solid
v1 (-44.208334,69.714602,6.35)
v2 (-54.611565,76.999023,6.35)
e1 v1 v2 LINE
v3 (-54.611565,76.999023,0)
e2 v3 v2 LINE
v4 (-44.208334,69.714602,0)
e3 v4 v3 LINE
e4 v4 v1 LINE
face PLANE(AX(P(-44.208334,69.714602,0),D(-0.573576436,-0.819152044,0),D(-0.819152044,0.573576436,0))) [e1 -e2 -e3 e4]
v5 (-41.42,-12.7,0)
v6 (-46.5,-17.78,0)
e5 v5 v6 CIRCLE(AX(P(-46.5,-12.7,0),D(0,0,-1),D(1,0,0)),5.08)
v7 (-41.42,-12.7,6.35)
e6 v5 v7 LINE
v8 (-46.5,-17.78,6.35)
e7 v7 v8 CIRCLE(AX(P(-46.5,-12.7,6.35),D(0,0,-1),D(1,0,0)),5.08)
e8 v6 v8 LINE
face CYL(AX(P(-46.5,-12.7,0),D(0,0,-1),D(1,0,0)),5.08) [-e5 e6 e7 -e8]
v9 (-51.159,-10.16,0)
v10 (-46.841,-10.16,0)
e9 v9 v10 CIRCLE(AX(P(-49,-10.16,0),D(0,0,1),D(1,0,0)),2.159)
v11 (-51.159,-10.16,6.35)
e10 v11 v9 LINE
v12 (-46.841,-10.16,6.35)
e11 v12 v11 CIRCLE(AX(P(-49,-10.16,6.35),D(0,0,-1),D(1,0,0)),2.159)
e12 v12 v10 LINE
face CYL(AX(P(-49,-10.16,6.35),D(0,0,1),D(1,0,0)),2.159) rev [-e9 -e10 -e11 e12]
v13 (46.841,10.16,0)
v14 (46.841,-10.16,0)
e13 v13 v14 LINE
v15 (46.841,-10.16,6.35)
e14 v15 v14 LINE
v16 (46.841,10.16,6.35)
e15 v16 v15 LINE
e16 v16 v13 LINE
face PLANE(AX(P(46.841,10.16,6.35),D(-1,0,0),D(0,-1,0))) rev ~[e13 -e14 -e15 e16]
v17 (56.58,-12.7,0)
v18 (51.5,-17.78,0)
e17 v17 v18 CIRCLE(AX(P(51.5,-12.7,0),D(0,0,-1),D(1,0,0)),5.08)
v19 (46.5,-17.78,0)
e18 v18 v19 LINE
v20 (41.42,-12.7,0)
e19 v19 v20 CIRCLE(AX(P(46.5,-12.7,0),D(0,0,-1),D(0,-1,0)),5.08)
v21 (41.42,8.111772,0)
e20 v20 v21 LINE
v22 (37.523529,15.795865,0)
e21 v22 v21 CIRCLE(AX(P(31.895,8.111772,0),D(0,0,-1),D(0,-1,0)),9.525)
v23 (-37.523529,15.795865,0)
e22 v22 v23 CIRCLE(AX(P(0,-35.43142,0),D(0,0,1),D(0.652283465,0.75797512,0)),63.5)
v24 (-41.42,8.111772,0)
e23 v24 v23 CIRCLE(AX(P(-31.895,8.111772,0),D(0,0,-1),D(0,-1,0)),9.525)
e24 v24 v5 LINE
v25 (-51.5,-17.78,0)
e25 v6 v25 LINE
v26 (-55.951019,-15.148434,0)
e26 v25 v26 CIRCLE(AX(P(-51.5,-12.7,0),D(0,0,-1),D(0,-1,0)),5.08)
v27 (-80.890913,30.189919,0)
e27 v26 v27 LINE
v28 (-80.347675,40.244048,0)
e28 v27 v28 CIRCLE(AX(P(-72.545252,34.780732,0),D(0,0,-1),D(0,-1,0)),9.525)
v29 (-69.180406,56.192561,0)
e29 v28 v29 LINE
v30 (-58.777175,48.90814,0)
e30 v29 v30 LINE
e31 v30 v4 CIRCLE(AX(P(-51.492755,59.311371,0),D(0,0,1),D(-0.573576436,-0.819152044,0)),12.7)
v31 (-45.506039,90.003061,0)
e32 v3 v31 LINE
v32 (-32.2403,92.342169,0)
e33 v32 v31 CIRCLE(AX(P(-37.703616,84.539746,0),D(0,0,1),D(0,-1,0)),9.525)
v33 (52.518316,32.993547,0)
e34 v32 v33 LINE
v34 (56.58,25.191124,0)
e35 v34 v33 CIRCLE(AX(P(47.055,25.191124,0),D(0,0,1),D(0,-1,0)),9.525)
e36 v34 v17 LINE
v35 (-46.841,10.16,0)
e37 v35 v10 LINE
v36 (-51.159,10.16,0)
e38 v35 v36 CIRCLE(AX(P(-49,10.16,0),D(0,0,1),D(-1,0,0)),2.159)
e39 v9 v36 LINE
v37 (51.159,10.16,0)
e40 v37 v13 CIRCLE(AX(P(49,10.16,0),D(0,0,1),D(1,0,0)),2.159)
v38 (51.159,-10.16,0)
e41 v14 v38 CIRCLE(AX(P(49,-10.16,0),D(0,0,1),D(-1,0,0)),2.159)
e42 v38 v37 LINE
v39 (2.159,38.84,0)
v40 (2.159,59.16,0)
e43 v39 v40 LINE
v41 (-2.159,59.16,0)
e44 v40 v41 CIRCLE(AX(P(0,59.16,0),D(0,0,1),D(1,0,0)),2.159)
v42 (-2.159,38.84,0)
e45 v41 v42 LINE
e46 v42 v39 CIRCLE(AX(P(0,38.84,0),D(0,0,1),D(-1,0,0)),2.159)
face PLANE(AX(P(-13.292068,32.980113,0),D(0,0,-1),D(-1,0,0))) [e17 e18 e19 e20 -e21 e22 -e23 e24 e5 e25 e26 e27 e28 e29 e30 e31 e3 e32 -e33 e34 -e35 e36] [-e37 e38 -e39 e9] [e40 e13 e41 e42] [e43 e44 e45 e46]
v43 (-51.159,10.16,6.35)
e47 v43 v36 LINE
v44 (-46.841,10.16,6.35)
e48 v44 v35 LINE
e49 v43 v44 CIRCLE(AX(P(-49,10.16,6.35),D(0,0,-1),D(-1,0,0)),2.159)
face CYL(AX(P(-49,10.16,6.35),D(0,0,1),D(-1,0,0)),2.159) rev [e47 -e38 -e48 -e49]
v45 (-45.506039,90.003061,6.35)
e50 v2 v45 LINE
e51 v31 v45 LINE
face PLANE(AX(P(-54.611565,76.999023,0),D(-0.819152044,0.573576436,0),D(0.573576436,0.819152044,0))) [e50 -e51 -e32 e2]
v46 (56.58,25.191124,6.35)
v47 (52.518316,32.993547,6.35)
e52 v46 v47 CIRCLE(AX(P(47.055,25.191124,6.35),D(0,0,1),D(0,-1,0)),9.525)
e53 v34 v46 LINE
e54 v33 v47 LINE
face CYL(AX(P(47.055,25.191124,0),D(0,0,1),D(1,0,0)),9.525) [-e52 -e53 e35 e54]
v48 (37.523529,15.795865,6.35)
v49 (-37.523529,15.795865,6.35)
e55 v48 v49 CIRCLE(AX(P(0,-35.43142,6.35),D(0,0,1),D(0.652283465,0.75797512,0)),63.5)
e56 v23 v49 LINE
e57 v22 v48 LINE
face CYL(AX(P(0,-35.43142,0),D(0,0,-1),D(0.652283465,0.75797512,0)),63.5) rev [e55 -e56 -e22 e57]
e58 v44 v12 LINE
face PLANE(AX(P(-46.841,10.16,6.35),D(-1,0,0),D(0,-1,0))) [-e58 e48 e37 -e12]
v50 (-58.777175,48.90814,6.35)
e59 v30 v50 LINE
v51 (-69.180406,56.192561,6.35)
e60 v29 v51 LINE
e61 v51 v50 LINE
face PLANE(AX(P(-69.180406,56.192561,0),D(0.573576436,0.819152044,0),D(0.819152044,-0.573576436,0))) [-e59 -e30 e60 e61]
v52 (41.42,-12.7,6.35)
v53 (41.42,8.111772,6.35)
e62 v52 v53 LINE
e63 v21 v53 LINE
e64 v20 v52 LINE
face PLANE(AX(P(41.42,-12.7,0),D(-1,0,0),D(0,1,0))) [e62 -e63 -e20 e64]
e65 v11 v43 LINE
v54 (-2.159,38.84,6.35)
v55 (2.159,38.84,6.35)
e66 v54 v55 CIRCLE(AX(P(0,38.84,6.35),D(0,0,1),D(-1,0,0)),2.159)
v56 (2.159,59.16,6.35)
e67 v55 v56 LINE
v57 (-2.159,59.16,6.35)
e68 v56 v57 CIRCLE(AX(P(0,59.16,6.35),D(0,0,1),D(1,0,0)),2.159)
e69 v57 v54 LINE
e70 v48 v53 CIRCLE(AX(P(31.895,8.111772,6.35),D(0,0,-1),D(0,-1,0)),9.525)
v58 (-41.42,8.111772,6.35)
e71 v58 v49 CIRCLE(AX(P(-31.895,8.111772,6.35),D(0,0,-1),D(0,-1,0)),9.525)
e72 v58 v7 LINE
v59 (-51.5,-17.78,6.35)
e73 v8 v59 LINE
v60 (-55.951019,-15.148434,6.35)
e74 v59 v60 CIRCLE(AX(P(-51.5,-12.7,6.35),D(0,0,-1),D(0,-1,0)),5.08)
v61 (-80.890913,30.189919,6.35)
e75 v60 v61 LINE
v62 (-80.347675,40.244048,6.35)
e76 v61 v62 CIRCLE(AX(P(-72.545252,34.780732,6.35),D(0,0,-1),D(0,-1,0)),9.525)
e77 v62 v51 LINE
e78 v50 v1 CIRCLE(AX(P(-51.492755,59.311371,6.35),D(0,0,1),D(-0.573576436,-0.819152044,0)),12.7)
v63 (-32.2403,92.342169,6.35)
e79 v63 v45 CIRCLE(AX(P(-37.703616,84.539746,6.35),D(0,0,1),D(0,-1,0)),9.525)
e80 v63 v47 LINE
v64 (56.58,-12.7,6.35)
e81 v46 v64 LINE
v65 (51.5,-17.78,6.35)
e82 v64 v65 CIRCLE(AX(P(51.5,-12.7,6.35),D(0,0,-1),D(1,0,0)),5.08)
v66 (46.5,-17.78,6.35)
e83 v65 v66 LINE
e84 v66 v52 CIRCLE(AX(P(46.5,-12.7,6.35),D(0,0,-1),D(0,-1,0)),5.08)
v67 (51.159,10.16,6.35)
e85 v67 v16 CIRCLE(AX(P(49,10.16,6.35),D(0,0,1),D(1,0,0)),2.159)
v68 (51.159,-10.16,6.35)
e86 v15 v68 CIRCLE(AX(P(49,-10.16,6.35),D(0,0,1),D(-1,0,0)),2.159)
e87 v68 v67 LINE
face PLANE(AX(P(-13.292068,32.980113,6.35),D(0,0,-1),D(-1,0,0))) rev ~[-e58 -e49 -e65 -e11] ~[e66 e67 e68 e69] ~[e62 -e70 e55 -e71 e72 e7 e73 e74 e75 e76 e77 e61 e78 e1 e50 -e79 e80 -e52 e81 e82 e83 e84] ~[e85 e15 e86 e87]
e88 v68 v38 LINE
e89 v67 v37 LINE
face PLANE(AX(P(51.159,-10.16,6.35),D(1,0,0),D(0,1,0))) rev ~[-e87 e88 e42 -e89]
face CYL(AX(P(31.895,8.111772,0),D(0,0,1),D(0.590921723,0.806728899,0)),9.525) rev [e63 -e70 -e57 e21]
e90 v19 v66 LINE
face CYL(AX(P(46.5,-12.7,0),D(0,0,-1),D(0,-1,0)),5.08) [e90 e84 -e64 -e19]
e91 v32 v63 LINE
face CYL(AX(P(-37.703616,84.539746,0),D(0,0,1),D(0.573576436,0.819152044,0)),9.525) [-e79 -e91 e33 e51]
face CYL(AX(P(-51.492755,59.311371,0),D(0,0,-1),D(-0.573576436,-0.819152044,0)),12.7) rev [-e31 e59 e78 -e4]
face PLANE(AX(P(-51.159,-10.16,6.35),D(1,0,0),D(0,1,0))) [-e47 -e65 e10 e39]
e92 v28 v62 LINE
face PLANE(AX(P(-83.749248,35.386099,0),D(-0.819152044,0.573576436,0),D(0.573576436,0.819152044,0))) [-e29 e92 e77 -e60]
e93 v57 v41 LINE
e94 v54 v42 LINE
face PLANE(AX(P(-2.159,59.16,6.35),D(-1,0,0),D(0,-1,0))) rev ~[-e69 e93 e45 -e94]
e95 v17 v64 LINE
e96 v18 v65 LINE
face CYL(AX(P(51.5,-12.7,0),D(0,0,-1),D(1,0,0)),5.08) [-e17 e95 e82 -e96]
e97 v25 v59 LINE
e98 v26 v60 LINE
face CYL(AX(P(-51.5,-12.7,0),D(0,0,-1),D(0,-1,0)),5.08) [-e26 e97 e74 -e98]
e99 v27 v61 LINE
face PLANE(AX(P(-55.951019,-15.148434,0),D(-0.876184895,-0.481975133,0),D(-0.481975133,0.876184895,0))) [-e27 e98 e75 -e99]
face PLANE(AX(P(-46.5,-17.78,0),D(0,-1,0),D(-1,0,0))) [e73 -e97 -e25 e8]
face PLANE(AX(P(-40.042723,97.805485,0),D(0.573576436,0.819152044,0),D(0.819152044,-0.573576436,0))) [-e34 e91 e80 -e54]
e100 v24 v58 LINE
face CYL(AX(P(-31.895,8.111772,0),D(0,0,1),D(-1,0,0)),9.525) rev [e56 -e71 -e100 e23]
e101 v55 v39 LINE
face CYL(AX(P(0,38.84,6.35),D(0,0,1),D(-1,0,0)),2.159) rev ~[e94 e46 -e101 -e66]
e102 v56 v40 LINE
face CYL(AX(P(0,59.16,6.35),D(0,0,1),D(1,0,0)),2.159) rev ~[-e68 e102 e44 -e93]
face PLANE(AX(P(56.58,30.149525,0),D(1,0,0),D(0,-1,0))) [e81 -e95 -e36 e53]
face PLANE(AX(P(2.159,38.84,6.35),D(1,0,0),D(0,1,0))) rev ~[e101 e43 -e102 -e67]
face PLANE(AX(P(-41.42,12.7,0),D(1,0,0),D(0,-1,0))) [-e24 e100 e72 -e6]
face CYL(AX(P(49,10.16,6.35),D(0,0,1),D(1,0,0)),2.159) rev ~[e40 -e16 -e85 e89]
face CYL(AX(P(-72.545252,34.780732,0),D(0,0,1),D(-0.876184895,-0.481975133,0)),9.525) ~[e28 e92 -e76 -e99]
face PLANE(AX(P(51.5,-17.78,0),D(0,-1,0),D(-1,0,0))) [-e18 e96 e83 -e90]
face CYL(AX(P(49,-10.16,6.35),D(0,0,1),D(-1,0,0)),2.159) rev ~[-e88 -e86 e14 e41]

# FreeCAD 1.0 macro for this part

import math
import FreeCAD as App
import Part
import Sketcher
Q = App.Units.Quantity


def edges_at(feature, points):
    """Names of the edges that pass closest to the given points."""
    edges = feature.Shape.Edges
    near = lambda p: min(range(len(edges)), key=lambda i: edges[i].distToShape(Part.Vertex(*p))[0])
    return sorted({f"Edge{near(p) + 1}" for p in points})

doc = App.newDocument("Part")
params = doc.addObject("Spreadsheet::Sheet", "Params")
for row, (alias, value) in enumerate([
    ("sketch1_radius", "2.5 in"),
    ("sketch1_radius2", "0.2 in"),
    ("sketch1_radius3", "0.5 in"),
    ("sketch1_height", "1 in"),
    ("sketch1_length", "1 in"),
    ("pad1_length", "0.25 in"),
    ("sketch2_height", "0.8 in"),
    ("sketch2_radius", "0.085 in"),
    ("sketch3_height", "0.8 in"),
    ("sketch3_radius", "0.085 in"),
    ("sketch4_height", "0.8 in"),
    ("sketch4_radius", "0.085 in"),
    ("fillet_radius", "0.375 in"),
], start=1):
    params.set(f"A{row}", alias)
    params.set(f"B{row}", "=" + value)
    params.setAlias(f"B{row}", alias)

body = doc.addObject("PartDesign::Body", "Body")

# Sketch on XY plane
sketch1 = doc.addObject("Sketcher::SketchObject", "Sketch")
body.addObject(sketch1)
sketch1.AttachmentSupport = (doc.XY_Plane, [""])
sketch1.MapMode = "FlatFace"
sketch1.addGeometry(Part.LineSegment(App.Vector(-41, -13, 0), App.Vector(-41, 13, 0)), False)
sketch1.addGeometry(Part.ArcOfCircle(Part.Circle(App.Vector(0, -35, 0), App.Vector(0, 0, 1), 63), math.radians(49), math.radians(131)), False)
sketch1.addGeometry(Part.LineSegment(App.Vector(41, 13, 0), App.Vector(41, -13, 0)), False)
sketch1.addGeometry(Part.ArcOfCircle(Part.Circle(App.Vector(47, -13, 0), App.Vector(0, 0, 1), 5), math.radians(-180), math.radians(-90)), False)
sketch1.addGeometry(Part.LineSegment(App.Vector(46, -18, 0), App.Vector(52, -18, 0)), False)
sketch1.addGeometry(Part.ArcOfCircle(Part.Circle(App.Vector(51, -13, 0), App.Vector(0, 0, 1), 5), math.radians(-90), math.radians(0)), False)
sketch1.addGeometry(Part.LineSegment(App.Vector(57, -13, 0), App.Vector(57, 30, 0)), False)
sketch1.addGeometry(Part.LineSegment(App.Vector(57, 30, 0), App.Vector(-40, 98, 0)), False)
sketch1.addGeometry(Part.LineSegment(App.Vector(-40, 98, 0), App.Vector(-55, 77, 0)), False)
sketch1.addGeometry(Part.LineSegment(App.Vector(-55, 77, 0), App.Vector(-44, 70, 0)), False)
sketch1.addGeometry(Part.ArcOfCircle(Part.Circle(App.Vector(-51, 59, 0), App.Vector(0, 0, 1), 13), math.radians(-125), math.radians(55)), False)
sketch1.addGeometry(Part.LineSegment(App.Vector(-59, 49, 0), App.Vector(-69, 56, 0)), False)
sketch1.addGeometry(Part.LineSegment(App.Vector(-69, 56, 0), App.Vector(-84, 35, 0)), False)
sketch1.addGeometry(Part.LineSegment(App.Vector(-84, 35, 0), App.Vector(-56, -15, 0)), False)
sketch1.addGeometry(Part.ArcOfCircle(Part.Circle(App.Vector(-52, -13, 0), App.Vector(0, 0, 1), 5), math.radians(-151), math.radians(-90)), False)
sketch1.addGeometry(Part.LineSegment(App.Vector(-52, -18, 0), App.Vector(-46, -18, 0)), False)
sketch1.addGeometry(Part.ArcOfCircle(Part.Circle(App.Vector(-47, -13, 0), App.Vector(0, 0, 1), 5), math.radians(-90), math.radians(0)), False)
sketch1.addConstraint(Sketcher.Constraint("Coincident", 0, 2, 1, 2))
sketch1.addConstraint(Sketcher.Constraint("Coincident", 1, 1, 2, 1))
sketch1.addConstraint(Sketcher.Constraint("Tangent", 2, 2, 3, 1))
sketch1.addConstraint(Sketcher.Constraint("Tangent", 3, 2, 4, 1))
sketch1.addConstraint(Sketcher.Constraint("Tangent", 4, 2, 5, 1))
sketch1.addConstraint(Sketcher.Constraint("Tangent", 5, 2, 6, 1))
sketch1.addConstraint(Sketcher.Constraint("Coincident", 6, 2, 7, 1))
sketch1.addConstraint(Sketcher.Constraint("Coincident", 7, 2, 8, 1))
sketch1.addConstraint(Sketcher.Constraint("Coincident", 8, 2, 9, 1))
sketch1.addConstraint(Sketcher.Constraint("Tangent", 9, 2, 10, 2))
sketch1.addConstraint(Sketcher.Constraint("Tangent", 10, 1, 11, 1))
sketch1.addConstraint(Sketcher.Constraint("Coincident", 11, 2, 12, 1))
sketch1.addConstraint(Sketcher.Constraint("Coincident", 12, 2, 13, 1))
sketch1.addConstraint(Sketcher.Constraint("Tangent", 13, 2, 14, 1))
sketch1.addConstraint(Sketcher.Constraint("Tangent", 14, 2, 15, 1))
sketch1.addConstraint(Sketcher.Constraint("Tangent", 15, 2, 16, 1))
sketch1.addConstraint(Sketcher.Constraint("Tangent", 16, 2, 0, 1))
sketch1.addConstraint(Sketcher.Constraint("Vertical", 0))
sketch1.addConstraint(Sketcher.Constraint("Vertical", 2))
sketch1.addConstraint(Sketcher.Constraint("Horizontal", 4))
sketch1.addConstraint(Sketcher.Constraint("Vertical", 6))
sketch1.addConstraint(Sketcher.Constraint("Horizontal", 15))
sketch1.addConstraint(Sketcher.Constraint("Equal", 3, 5))
sketch1.addConstraint(Sketcher.Constraint("Equal", 5, 14))
sketch1.addConstraint(Sketcher.Constraint("Equal", 14, 16))
sketch1.addConstraint(Sketcher.Constraint("Symmetric", 0, 2, 2, 2, -1, 1))
sketch1.addConstraint(Sketcher.Constraint("Symmetric", 5, 3, 14, 3, -2))
sketch1.addConstraint(Sketcher.Constraint("PointOnObject", 1, 3, -2))
sketch1.addConstraint(Sketcher.Constraint("Perpendicular", 7, 8))
sketch1.addConstraint(Sketcher.Constraint("Perpendicular", 8, 9))
sketch1.addConstraint(Sketcher.Constraint("Parallel", 9, 11))
sketch1.addConstraint(Sketcher.Constraint("Perpendicular", 11, 12))
sketch1.addConstraint(Sketcher.Constraint("Equal", 9, 11))
sketch1.addConstraint(Sketcher.Constraint("Equal", 8, 12))
sketch1.addConstraint(Sketcher.Constraint("Radius", 1, Q("2.5 in")))
sketch1.addConstraint(Sketcher.Constraint("Radius", 3, Q("0.2 in")))
sketch1.addConstraint(Sketcher.Constraint("Radius", 10, Q("0.5 in")))
sketch1.addConstraint(Sketcher.Constraint("DistanceY", 0, 1, 0, 2, Q("1 in")))
sketch1.addConstraint(Sketcher.Constraint("Distance", 8, Q("1 in")))
sketch1.addConstraint(Sketcher.Constraint("Angle", 7, Q("145 deg")))
sketch1.addConstraint(Sketcher.Constraint("Distance", 9, Q("0.5 in")))
sketch1.addConstraint(Sketcher.Constraint("DistanceX", 4, 1, 4, 2, Q("5 mm")))
sketch1.addConstraint(Sketcher.Constraint("DistanceX", -1, 1, 3, 3, Q("46.5 mm")))
sketch1.addConstraint(Sketcher.Constraint("DistanceY", -1, 1, 9, 2, Q("69.714602 mm")))
sketch1.addConstraint(Sketcher.Constraint("Distance", 13, Q("57.675649 mm")))
sketch1.setExpression("Constraints[34]", "Params.sketch1_radius")
sketch1.setExpression("Constraints[35]", "Params.sketch1_radius2")
sketch1.setExpression("Constraints[36]", "Params.sketch1_radius3")
sketch1.setExpression("Constraints[37]", "Params.sketch1_height")
sketch1.setExpression("Constraints[38]", "Params.sketch1_length")
pad1 = doc.addObject("PartDesign::Pad", "Pad")
body.addObject(pad1)
pad1.Profile = sketch1
pad1.setExpression("Length", "Params.pad1_length")

# Sketch on XY plane
sketch2 = doc.addObject("Sketcher::SketchObject", "Sketch001")
body.addObject(sketch2)
sketch2.AttachmentSupport = (doc.XY_Plane, [""])
sketch2.MapMode = "FlatFace"
sketch2.AttachmentOffset = App.Placement(App.Vector(0, 0, 0.25 * 25.4), App.Rotation())
sketch2.addGeometry(Part.LineSegment(App.Vector(-51.2, 10.2, 0), App.Vector(-51.2, -10.2, 0)), False)
sketch2.addGeometry(Part.ArcOfCircle(Part.Circle(App.Vector(-49, -10.2, 0), App.Vector(0, 0, 1), 2.2), math.radians(180), math.radians(360)), False)
sketch2.addGeometry(Part.LineSegment(App.Vector(-46.8, -10.2, 0), App.Vector(-46.8, 10.2, 0)), False)
sketch2.addGeometry(Part.ArcOfCircle(Part.Circle(App.Vector(-49, 10.2, 0), App.Vector(0, 0, 1), 2.2), math.radians(0), math.radians(180)), False)
sketch2.addConstraint(Sketcher.Constraint("Tangent", 0, 2, 1, 1))
sketch2.addConstraint(Sketcher.Constraint("Tangent", 1, 2, 2, 1))
sketch2.addConstraint(Sketcher.Constraint("Tangent", 2, 2, 3, 1))
sketch2.addConstraint(Sketcher.Constraint("Tangent", 3, 2, 0, 1))
sketch2.addConstraint(Sketcher.Constraint("Vertical", 0))
sketch2.addConstraint(Sketcher.Constraint("Vertical", 2))
sketch2.addConstraint(Sketcher.Constraint("DistanceY", 0, 2, 0, 1, Q("0.8 in")))
sketch2.addConstraint(Sketcher.Constraint("Radius", 1, Q("0.085 in")))
sketch2.addConstraint(Sketcher.Constraint("DistanceY", 1, 3, -1, 1, Q("0.4 in")))
sketch2.addConstraint(Sketcher.Constraint("DistanceX", 1, 3, -1, 1, Q("49 mm")))
sketch2.setExpression("Constraints[6]", "Params.sketch2_height")
sketch2.setExpression("Constraints[7]", "Params.sketch2_radius")
pocket1 = doc.addObject("PartDesign::Pocket", "Pocket")
body.addObject(pocket1)
pocket1.Profile = sketch2
pocket1.Type = "UpToFirst"

# Sketch on XY plane
sketch3 = doc.addObject("Sketcher::SketchObject", "Sketch002")
body.addObject(sketch3)
sketch3.AttachmentSupport = (doc.XY_Plane, [""])
sketch3.MapMode = "FlatFace"
sketch3.AttachmentOffset = App.Placement(App.Vector(0, 0, 0.25 * 25.4), App.Rotation())
sketch3.addGeometry(Part.LineSegment(App.Vector(2.2, 38.8, 0), App.Vector(2.2, 59.2, 0)), False)
sketch3.addGeometry(Part.ArcOfCircle(Part.Circle(App.Vector(0, 59.2, 0), App.Vector(0, 0, 1), 2.2), math.radians(0), math.radians(180)), False)
sketch3.addGeometry(Part.LineSegment(App.Vector(-2.2, 59.2, 0), App.Vector(-2.2, 38.8, 0)), False)
sketch3.addGeometry(Part.ArcOfCircle(Part.Circle(App.Vector(0, 38.8, 0), App.Vector(0, 0, 1), 2.2), math.radians(180), math.radians(360)), False)
sketch3.addConstraint(Sketcher.Constraint("Tangent", 0, 2, 1, 1))
sketch3.addConstraint(Sketcher.Constraint("Tangent", 1, 2, 2, 1))
sketch3.addConstraint(Sketcher.Constraint("Tangent", 2, 2, 3, 1))
sketch3.addConstraint(Sketcher.Constraint("Tangent", 3, 2, 0, 1))
sketch3.addConstraint(Sketcher.Constraint("Vertical", 0))
sketch3.addConstraint(Sketcher.Constraint("Vertical", 2))
sketch3.addConstraint(Sketcher.Constraint("PointOnObject", 1, 3, -2))
sketch3.addConstraint(Sketcher.Constraint("DistanceY", 0, 1, 0, 2, Q("0.8 in")))
sketch3.addConstraint(Sketcher.Constraint("Radius", 1, Q("0.085 in")))
sketch3.addConstraint(Sketcher.Constraint("DistanceY", -1, 1, 1, 3, Q("59.16 mm")))
sketch3.setExpression("Constraints[7]", "Params.sketch3_height")
sketch3.setExpression("Constraints[8]", "Params.sketch3_radius")
pocket2 = doc.addObject("PartDesign::Pocket", "Pocket001")
body.addObject(pocket2)
pocket2.Profile = sketch3
pocket2.Type = "UpToFirst"

# Sketch on XY plane
sketch4 = doc.addObject("Sketcher::SketchObject", "Sketch003")
body.addObject(sketch4)
sketch4.AttachmentSupport = (doc.XY_Plane, [""])
sketch4.MapMode = "FlatFace"
sketch4.AttachmentOffset = App.Placement(App.Vector(0, 0, 0.25 * 25.4), App.Rotation())
sketch4.addGeometry(Part.LineSegment(App.Vector(51.2, -10.2, 0), App.Vector(51.2, 10.2, 0)), False)
sketch4.addGeometry(Part.ArcOfCircle(Part.Circle(App.Vector(49, 10.2, 0), App.Vector(0, 0, 1), 2.2), math.radians(0), math.radians(180)), False)
sketch4.addGeometry(Part.LineSegment(App.Vector(46.8, 10.2, 0), App.Vector(46.8, -10.2, 0)), False)
sketch4.addGeometry(Part.ArcOfCircle(Part.Circle(App.Vector(49, -10.2, 0), App.Vector(0, 0, 1), 2.2), math.radians(180), math.radians(360)), False)
sketch4.addConstraint(Sketcher.Constraint("Tangent", 0, 2, 1, 1))
sketch4.addConstraint(Sketcher.Constraint("Tangent", 1, 2, 2, 1))
sketch4.addConstraint(Sketcher.Constraint("Tangent", 2, 2, 3, 1))
sketch4.addConstraint(Sketcher.Constraint("Tangent", 3, 2, 0, 1))
sketch4.addConstraint(Sketcher.Constraint("Vertical", 0))
sketch4.addConstraint(Sketcher.Constraint("Vertical", 2))
sketch4.addConstraint(Sketcher.Constraint("DistanceY", 0, 1, 0, 2, Q("0.8 in")))
sketch4.addConstraint(Sketcher.Constraint("Radius", 1, Q("0.085 in")))
sketch4.addConstraint(Sketcher.Constraint("DistanceY", -1, 1, 1, 3, Q("0.4 in")))
sketch4.addConstraint(Sketcher.Constraint("DistanceX", -1, 1, 1, 3, Q("49 mm")))
sketch4.setExpression("Constraints[6]", "Params.sketch4_height")
sketch4.setExpression("Constraints[7]", "Params.sketch4_radius")
pocket3 = doc.addObject("PartDesign::Pocket", "Pocket002")
body.addObject(pocket3)
pocket3.Profile = sketch4
pocket3.Type = "UpToFirst"
doc.recompute()

fillet = doc.addObject("PartDesign::Fillet", "Fillet")
body.addObject(fillet)
fillet.Base = (pocket3, edges_at(pocket3, [
    (-41.42, 12.7, 3.175),
    (-83.749, 35.386, 3.175),
    (-40.043, 97.805, 3.175),
    (56.58, 30.15, 3.175),
    (41.42, 12.7, 3.175),
]))
fillet.setExpression("Radius", "Params.fillet_radius")

doc.recompute()
